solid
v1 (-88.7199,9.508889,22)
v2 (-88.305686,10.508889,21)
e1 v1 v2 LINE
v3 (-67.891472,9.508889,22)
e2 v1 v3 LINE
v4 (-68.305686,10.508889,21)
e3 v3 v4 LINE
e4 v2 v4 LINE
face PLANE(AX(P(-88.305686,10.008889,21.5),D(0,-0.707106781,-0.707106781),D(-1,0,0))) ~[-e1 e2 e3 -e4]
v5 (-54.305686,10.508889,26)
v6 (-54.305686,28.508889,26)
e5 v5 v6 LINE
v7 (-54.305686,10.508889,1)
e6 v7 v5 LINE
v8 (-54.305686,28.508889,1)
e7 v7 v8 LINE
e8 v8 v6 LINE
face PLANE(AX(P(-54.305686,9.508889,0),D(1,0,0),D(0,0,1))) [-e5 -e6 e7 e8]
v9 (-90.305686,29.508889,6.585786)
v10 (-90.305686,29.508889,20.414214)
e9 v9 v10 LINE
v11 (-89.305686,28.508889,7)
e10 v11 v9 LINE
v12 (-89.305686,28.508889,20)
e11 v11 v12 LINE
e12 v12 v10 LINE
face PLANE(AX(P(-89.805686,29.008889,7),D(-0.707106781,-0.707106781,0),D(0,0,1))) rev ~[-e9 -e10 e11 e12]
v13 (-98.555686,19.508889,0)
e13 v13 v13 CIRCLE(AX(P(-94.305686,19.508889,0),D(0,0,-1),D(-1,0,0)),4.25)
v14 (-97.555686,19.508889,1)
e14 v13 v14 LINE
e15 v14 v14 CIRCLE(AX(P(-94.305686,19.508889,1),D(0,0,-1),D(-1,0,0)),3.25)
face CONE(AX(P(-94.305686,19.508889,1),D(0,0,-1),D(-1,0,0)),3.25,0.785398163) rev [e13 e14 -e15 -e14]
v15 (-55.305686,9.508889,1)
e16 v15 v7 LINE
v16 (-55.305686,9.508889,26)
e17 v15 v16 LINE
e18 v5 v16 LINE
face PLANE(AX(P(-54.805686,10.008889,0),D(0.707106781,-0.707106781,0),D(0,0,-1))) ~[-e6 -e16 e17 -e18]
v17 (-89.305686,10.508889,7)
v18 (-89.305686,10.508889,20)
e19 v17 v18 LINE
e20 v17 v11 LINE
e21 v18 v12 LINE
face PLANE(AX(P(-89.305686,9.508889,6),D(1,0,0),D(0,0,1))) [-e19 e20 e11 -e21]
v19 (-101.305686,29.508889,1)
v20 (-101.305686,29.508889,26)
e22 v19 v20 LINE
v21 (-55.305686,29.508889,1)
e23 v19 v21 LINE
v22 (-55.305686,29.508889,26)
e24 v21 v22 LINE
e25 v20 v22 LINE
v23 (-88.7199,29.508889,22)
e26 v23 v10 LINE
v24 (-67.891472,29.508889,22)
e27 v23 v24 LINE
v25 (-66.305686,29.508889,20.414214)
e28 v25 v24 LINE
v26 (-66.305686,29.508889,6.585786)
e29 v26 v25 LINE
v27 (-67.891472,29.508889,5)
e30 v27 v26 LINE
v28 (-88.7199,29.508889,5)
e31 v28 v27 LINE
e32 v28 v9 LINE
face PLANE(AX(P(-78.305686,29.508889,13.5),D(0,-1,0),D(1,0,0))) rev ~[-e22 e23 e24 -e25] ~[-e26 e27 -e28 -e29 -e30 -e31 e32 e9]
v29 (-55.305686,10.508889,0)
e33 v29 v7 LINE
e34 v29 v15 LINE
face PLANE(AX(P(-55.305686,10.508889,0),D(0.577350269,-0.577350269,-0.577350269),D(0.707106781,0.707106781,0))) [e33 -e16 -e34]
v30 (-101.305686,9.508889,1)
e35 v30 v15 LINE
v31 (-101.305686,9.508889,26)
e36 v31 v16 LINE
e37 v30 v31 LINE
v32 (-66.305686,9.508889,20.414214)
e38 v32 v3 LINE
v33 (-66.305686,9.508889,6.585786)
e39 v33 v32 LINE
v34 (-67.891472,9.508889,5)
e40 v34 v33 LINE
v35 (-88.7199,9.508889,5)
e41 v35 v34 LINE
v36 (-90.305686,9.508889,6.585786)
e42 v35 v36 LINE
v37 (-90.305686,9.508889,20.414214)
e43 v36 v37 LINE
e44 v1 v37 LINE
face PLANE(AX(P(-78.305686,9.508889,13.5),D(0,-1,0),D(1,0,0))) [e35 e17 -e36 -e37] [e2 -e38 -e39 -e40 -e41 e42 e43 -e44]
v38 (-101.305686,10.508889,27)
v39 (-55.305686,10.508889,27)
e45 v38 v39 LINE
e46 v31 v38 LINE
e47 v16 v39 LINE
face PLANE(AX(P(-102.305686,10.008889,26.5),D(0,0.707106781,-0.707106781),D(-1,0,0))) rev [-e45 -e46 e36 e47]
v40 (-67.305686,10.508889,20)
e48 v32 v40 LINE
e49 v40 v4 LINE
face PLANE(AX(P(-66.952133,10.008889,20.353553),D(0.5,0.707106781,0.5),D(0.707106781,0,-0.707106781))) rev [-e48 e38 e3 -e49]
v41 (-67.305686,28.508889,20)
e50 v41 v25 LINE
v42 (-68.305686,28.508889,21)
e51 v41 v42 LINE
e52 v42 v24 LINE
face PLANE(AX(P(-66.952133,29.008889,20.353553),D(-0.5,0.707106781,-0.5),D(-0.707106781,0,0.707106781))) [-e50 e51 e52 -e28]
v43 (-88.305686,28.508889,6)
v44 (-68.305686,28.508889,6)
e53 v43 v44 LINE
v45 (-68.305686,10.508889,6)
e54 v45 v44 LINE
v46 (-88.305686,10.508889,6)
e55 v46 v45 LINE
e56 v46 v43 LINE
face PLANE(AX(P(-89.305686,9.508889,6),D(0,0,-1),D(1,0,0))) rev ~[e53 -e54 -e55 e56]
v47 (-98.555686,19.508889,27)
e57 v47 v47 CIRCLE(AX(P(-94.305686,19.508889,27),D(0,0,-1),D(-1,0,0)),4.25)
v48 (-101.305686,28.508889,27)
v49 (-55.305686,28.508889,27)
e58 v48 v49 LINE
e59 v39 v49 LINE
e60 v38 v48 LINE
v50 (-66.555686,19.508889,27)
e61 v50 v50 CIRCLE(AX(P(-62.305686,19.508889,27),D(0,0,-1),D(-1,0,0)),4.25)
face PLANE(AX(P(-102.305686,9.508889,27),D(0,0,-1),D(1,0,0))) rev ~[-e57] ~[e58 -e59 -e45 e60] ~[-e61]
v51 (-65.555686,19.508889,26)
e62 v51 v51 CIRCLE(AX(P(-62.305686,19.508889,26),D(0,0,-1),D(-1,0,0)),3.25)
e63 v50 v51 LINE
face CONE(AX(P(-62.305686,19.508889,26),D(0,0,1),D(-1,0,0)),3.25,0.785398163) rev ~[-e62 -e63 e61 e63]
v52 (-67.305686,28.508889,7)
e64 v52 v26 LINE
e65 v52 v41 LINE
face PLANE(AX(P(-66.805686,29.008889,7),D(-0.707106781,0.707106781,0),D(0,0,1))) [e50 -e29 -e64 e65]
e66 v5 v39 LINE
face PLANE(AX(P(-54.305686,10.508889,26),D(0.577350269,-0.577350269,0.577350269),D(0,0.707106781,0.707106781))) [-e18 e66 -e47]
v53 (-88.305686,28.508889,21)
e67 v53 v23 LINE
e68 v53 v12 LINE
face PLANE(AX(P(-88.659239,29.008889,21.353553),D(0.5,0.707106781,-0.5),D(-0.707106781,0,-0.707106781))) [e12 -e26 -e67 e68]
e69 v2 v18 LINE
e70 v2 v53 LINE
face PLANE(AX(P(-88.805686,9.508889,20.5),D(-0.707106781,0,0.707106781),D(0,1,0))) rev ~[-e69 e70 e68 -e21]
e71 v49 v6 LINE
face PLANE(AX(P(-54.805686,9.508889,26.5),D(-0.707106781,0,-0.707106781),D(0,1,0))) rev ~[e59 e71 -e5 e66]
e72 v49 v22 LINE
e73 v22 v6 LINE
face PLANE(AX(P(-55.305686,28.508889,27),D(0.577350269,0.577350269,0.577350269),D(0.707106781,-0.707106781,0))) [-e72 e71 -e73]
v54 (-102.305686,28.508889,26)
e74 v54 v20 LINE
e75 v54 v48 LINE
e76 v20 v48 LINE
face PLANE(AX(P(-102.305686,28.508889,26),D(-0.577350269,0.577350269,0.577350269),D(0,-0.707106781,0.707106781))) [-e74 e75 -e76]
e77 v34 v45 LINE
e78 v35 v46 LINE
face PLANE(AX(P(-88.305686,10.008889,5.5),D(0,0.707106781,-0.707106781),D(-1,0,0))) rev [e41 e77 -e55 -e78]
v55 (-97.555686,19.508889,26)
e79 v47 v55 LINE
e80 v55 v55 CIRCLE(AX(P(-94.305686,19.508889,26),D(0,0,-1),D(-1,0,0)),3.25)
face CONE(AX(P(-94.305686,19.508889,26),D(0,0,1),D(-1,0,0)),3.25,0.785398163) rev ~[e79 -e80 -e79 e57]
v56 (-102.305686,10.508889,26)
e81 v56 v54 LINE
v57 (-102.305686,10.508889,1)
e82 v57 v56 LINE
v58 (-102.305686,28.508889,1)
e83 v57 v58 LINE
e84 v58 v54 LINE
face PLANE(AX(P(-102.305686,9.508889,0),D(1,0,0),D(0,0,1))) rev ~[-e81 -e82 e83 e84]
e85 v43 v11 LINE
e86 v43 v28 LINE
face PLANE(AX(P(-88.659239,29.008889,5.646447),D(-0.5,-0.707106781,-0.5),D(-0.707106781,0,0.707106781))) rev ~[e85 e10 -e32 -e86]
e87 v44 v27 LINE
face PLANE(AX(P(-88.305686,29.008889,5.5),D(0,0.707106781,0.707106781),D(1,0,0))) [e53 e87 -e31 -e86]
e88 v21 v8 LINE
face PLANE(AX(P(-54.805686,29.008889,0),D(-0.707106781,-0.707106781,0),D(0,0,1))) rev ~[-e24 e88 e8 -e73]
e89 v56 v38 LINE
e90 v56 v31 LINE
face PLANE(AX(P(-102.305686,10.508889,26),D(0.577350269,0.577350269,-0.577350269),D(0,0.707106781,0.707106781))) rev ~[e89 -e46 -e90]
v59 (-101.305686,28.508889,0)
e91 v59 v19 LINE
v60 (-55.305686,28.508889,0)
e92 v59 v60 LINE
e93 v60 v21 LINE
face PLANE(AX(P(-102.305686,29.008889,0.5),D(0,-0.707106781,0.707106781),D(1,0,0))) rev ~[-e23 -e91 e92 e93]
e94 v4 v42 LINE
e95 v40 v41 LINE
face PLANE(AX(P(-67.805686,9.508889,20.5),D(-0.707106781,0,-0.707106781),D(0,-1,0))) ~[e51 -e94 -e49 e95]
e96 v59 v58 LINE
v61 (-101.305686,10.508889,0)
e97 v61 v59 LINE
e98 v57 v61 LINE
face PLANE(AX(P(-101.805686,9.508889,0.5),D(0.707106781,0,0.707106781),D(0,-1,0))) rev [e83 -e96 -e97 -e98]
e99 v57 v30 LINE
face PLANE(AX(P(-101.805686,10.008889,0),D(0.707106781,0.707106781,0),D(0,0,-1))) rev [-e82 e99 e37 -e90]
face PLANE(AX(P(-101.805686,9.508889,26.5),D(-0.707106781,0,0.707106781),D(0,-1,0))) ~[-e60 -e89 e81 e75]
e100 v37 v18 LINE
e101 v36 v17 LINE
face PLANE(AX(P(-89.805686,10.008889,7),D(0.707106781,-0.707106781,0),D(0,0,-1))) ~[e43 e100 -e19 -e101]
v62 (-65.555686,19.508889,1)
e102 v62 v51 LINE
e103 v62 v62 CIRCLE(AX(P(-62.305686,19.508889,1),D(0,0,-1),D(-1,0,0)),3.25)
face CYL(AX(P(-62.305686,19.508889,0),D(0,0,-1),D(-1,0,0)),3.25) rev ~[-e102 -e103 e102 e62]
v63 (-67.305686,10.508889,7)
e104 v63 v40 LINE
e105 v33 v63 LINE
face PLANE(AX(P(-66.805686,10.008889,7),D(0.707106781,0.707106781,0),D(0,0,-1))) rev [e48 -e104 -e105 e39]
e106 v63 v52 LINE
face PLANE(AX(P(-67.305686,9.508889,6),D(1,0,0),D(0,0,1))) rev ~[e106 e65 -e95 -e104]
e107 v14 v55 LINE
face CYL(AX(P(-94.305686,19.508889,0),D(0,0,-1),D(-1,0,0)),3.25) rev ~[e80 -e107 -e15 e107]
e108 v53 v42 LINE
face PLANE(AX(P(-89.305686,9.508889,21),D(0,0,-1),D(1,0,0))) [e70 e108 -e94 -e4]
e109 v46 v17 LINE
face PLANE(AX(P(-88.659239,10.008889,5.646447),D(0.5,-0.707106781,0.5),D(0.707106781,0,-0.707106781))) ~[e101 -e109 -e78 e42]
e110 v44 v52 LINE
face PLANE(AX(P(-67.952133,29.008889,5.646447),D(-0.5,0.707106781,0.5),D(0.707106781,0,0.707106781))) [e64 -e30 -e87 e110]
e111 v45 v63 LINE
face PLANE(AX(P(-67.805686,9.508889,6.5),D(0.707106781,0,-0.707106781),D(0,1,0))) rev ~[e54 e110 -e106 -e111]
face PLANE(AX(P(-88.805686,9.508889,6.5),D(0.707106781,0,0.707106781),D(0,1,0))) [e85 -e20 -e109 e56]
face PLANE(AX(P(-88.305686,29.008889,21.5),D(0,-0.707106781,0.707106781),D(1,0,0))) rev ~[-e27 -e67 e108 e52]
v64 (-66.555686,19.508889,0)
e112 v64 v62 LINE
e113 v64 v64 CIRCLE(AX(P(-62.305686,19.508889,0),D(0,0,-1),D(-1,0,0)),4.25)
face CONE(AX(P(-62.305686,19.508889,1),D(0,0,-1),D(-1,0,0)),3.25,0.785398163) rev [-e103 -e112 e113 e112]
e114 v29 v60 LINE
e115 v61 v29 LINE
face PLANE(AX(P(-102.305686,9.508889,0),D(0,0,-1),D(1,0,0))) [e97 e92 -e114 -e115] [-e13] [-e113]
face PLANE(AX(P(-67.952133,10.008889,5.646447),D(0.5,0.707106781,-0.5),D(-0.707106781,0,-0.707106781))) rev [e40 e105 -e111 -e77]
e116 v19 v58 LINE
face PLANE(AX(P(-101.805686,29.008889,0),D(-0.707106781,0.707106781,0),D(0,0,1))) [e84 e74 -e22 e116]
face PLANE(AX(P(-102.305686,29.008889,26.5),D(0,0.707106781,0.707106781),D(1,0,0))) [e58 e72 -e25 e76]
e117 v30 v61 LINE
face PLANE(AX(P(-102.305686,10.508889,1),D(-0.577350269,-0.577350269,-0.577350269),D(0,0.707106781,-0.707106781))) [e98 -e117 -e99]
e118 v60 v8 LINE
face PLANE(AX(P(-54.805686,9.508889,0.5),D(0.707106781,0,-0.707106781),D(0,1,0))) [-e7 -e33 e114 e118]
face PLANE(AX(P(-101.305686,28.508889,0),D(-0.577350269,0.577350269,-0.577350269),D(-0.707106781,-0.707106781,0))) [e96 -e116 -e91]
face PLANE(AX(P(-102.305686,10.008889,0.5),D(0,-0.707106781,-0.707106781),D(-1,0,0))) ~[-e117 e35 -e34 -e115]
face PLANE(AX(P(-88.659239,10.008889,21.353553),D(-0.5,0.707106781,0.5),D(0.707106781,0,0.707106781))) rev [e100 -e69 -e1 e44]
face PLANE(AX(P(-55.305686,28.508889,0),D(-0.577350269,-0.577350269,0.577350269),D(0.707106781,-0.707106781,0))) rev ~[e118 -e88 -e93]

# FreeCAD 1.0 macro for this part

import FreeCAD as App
import Part
import Sketcher
from FreeCAD import Vector
Q = App.Units.Quantity


def edges_at(feature, points):
    """Names of the edges that pass closest to the given points."""
    edges = feature.Shape.Edges
    near = lambda p: min(range(len(edges)), key=lambda i: edges[i].distToShape(Part.Vertex(*p))[0])
    return sorted({f"Edge{near(p) + 1}" for p in points})

doc = App.newDocument("Part")
body = doc.addObject("PartDesign::Body", "Body")

sketch1 = body.newObject("Sketcher::SketchObject", "Sketch")
sketch1.AttachmentSupport = (doc.getObject("XZ_Plane"), [""])
sketch1.MapMode = "FlatFace"
sketch1.AttachmentOffset = App.Placement(Vector(0, 0, -9.508889), App.Rotation())
sketch1.addGeometry(Part.LineSegment(Vector(-102, 27, 0), Vector(-102, 0, 0)), False)
sketch1.addGeometry(Part.LineSegment(Vector(-102, 0, 0), Vector(-54, 0, 0)), False)
sketch1.addGeometry(Part.LineSegment(Vector(-54, 0, 0), Vector(-54, 27, 0)), False)
sketch1.addGeometry(Part.LineSegment(Vector(-54, 27, 0), Vector(-102, 27, 0)), False)
sketch1.addConstraint(Sketcher.Constraint("Coincident", 0, 2, 1, 1))
sketch1.addConstraint(Sketcher.Constraint("Coincident", 1, 2, 2, 1))
sketch1.addConstraint(Sketcher.Constraint("Coincident", 2, 2, 3, 1))
sketch1.addConstraint(Sketcher.Constraint("Coincident", 3, 2, 0, 1))
sketch1.addConstraint(Sketcher.Constraint("Vertical", 0))
sketch1.addConstraint(Sketcher.Constraint("Horizontal", 1))
sketch1.addConstraint(Sketcher.Constraint("Vertical", 2))
sketch1.addConstraint(Sketcher.Constraint("Horizontal", 3))
sketch1.addConstraint(Sketcher.Constraint("PointOnObject", 0, 2, -1))
sketch1.addConstraint(Sketcher.Constraint("DistanceX", 1, 1, 1, 2, Q("48 mm")))
sketch1.addConstraint(Sketcher.Constraint("DistanceY", 0, 2, 0, 1, Q("27 mm")))
sketch1.addConstraint(Sketcher.Constraint("DistanceX", 0, 2, -1, 1, Q("102.305686 mm")))
pad1 = body.newObject("PartDesign::Pad", "Pad")
pad1.Profile = sketch1
pad1.Length = 20
pad1.Reversed = True

sketch2 = body.newObject("Sketcher::SketchObject", "Sketch001")
sketch2.AttachmentSupport = (doc.getObject("XZ_Plane"), [""])
sketch2.MapMode = "FlatFace"
sketch2.AttachmentOffset = App.Placement(Vector(0, 0, -9.508889), App.Rotation())
sketch2.addGeometry(Part.LineSegment(Vector(-89, 21, 0), Vector(-89, 6, 0)), False)
sketch2.addGeometry(Part.LineSegment(Vector(-89, 6, 0), Vector(-67, 6, 0)), False)
sketch2.addGeometry(Part.LineSegment(Vector(-67, 6, 0), Vector(-67, 21, 0)), False)
sketch2.addGeometry(Part.LineSegment(Vector(-67, 21, 0), Vector(-89, 21, 0)), False)
sketch2.addConstraint(Sketcher.Constraint("Coincident", 0, 2, 1, 1))
sketch2.addConstraint(Sketcher.Constraint("Coincident", 1, 2, 2, 1))
sketch2.addConstraint(Sketcher.Constraint("Coincident", 2, 2, 3, 1))
sketch2.addConstraint(Sketcher.Constraint("Coincident", 3, 2, 0, 1))
sketch2.addConstraint(Sketcher.Constraint("Vertical", 0))
sketch2.addConstraint(Sketcher.Constraint("Horizontal", 1))
sketch2.addConstraint(Sketcher.Constraint("Vertical", 2))
sketch2.addConstraint(Sketcher.Constraint("Horizontal", 3))
sketch2.addConstraint(Sketcher.Constraint("DistanceX", 1, 1, 1, 2, Q("22 mm")))
sketch2.addConstraint(Sketcher.Constraint("DistanceY", 0, 2, 0, 1, Q("15 mm")))
sketch2.addConstraint(Sketcher.Constraint("DistanceY", -1, 1, 0, 2, Q("6 mm")))
sketch2.addConstraint(Sketcher.Constraint("DistanceX", 0, 2, -1, 1, Q("89.305686 mm")))
pocket1 = body.newObject("PartDesign::Pocket", "Pocket")
pocket1.Profile = sketch2
pocket1.Type = "ThroughAll"

sketch3 = body.newObject("Sketcher::SketchObject", "Sketch002")
sketch3.AttachmentSupport = (doc.getObject("XY_Plane"), [""])
sketch3.MapMode = "FlatFace"
sketch3.addGeometry(Part.Circle(Vector(-94.3, 19.5, 0), Vector(0, 0, 1), 3.2), False)
sketch3.addGeometry(Part.Circle(Vector(-62.3, 19.5, 0), Vector(0, 0, 1), 3.2), False)
sketch3.addConstraint(Sketcher.Constraint("Equal", 0, 1))
sketch3.addConstraint(Sketcher.Constraint("Horizontal", 0, 3, 1, 3))
sketch3.addConstraint(Sketcher.Constraint("Diameter", 0, Q("6.5 mm")))
sketch3.addConstraint(Sketcher.Constraint("DistanceX", 0, 3, 1, 3, Q("32 mm")))
sketch3.addConstraint(Sketcher.Constraint("DistanceY", -1, 1, 0, 3, Q("19.508889 mm")))
sketch3.addConstraint(Sketcher.Constraint("DistanceX", 0, 3, -1, 1, Q("94.305686 mm")))
pocket2 = body.newObject("PartDesign::Pocket", "Pocket001")
pocket2.Profile = sketch3
pocket2.Type = "ThroughAll"
pocket2.Reversed = True
doc.recompute()

chamfer = body.newObject("PartDesign::Chamfer", "Chamfer")
chamfer.Base = (pocket2, edges_at(pocket2, [
    (-89.306, 19.509, 21),
    (-67.306, 19.509, 21),
    (-67.306, 19.509, 6),
    (-89.306, 19.509, 6),
]))
chamfer.Size = 1
doc.recompute()

chamfer2 = body.newObject("PartDesign::Chamfer", "Chamfer001")
chamfer2.Base = (chamfer, edges_at(chamfer, [
    (-54.306, 29.509, 13.5),
    (-78.306, 29.509, 27),
    (-91.056, 19.509, 27),
    (-91.056, 19.509, 0),
    (-59.056, 19.509, 27),
    (-59.056, 19.509, 0),
    (-78.306, 9.509, 6),
    (-78.306, 29.509, 6),
    (-89.306, 9.509, 13.5),
    (-102.306, 29.509, 13.5),
    (-89.306, 29.509, 13.5),
    (-67.306, 9.509, 13.5),
    (-67.306, 29.509, 13.5),
    (-78.306, 9.509, 21),
    (-78.306, 29.509, 21),
    (-78.306, 9.509, 27),
    (-88.806, 9.509, 6.5),
    (-88.806, 29.509, 6.5),
    (-67.806, 9.509, 6.5),
    (-67.806, 29.509, 6.5),
    (-67.806, 9.509, 20.5),
    (-67.806, 29.509, 20.5),
    (-88.806, 9.509, 20.5),
    (-54.306, 9.509, 13.5),
    (-88.806, 29.509, 20.5),
    (-78.306, 9.509, 0),
    (-102.306, 9.509, 13.5),
    (-78.306, 29.509, 0),
    (-102.306, 19.509, 27),
    (-54.306, 19.509, 27),
    (-54.306, 19.509, 0),
    (-102.306, 19.509, 0),
]))
chamfer2.Size = 1

doc.recompute()
